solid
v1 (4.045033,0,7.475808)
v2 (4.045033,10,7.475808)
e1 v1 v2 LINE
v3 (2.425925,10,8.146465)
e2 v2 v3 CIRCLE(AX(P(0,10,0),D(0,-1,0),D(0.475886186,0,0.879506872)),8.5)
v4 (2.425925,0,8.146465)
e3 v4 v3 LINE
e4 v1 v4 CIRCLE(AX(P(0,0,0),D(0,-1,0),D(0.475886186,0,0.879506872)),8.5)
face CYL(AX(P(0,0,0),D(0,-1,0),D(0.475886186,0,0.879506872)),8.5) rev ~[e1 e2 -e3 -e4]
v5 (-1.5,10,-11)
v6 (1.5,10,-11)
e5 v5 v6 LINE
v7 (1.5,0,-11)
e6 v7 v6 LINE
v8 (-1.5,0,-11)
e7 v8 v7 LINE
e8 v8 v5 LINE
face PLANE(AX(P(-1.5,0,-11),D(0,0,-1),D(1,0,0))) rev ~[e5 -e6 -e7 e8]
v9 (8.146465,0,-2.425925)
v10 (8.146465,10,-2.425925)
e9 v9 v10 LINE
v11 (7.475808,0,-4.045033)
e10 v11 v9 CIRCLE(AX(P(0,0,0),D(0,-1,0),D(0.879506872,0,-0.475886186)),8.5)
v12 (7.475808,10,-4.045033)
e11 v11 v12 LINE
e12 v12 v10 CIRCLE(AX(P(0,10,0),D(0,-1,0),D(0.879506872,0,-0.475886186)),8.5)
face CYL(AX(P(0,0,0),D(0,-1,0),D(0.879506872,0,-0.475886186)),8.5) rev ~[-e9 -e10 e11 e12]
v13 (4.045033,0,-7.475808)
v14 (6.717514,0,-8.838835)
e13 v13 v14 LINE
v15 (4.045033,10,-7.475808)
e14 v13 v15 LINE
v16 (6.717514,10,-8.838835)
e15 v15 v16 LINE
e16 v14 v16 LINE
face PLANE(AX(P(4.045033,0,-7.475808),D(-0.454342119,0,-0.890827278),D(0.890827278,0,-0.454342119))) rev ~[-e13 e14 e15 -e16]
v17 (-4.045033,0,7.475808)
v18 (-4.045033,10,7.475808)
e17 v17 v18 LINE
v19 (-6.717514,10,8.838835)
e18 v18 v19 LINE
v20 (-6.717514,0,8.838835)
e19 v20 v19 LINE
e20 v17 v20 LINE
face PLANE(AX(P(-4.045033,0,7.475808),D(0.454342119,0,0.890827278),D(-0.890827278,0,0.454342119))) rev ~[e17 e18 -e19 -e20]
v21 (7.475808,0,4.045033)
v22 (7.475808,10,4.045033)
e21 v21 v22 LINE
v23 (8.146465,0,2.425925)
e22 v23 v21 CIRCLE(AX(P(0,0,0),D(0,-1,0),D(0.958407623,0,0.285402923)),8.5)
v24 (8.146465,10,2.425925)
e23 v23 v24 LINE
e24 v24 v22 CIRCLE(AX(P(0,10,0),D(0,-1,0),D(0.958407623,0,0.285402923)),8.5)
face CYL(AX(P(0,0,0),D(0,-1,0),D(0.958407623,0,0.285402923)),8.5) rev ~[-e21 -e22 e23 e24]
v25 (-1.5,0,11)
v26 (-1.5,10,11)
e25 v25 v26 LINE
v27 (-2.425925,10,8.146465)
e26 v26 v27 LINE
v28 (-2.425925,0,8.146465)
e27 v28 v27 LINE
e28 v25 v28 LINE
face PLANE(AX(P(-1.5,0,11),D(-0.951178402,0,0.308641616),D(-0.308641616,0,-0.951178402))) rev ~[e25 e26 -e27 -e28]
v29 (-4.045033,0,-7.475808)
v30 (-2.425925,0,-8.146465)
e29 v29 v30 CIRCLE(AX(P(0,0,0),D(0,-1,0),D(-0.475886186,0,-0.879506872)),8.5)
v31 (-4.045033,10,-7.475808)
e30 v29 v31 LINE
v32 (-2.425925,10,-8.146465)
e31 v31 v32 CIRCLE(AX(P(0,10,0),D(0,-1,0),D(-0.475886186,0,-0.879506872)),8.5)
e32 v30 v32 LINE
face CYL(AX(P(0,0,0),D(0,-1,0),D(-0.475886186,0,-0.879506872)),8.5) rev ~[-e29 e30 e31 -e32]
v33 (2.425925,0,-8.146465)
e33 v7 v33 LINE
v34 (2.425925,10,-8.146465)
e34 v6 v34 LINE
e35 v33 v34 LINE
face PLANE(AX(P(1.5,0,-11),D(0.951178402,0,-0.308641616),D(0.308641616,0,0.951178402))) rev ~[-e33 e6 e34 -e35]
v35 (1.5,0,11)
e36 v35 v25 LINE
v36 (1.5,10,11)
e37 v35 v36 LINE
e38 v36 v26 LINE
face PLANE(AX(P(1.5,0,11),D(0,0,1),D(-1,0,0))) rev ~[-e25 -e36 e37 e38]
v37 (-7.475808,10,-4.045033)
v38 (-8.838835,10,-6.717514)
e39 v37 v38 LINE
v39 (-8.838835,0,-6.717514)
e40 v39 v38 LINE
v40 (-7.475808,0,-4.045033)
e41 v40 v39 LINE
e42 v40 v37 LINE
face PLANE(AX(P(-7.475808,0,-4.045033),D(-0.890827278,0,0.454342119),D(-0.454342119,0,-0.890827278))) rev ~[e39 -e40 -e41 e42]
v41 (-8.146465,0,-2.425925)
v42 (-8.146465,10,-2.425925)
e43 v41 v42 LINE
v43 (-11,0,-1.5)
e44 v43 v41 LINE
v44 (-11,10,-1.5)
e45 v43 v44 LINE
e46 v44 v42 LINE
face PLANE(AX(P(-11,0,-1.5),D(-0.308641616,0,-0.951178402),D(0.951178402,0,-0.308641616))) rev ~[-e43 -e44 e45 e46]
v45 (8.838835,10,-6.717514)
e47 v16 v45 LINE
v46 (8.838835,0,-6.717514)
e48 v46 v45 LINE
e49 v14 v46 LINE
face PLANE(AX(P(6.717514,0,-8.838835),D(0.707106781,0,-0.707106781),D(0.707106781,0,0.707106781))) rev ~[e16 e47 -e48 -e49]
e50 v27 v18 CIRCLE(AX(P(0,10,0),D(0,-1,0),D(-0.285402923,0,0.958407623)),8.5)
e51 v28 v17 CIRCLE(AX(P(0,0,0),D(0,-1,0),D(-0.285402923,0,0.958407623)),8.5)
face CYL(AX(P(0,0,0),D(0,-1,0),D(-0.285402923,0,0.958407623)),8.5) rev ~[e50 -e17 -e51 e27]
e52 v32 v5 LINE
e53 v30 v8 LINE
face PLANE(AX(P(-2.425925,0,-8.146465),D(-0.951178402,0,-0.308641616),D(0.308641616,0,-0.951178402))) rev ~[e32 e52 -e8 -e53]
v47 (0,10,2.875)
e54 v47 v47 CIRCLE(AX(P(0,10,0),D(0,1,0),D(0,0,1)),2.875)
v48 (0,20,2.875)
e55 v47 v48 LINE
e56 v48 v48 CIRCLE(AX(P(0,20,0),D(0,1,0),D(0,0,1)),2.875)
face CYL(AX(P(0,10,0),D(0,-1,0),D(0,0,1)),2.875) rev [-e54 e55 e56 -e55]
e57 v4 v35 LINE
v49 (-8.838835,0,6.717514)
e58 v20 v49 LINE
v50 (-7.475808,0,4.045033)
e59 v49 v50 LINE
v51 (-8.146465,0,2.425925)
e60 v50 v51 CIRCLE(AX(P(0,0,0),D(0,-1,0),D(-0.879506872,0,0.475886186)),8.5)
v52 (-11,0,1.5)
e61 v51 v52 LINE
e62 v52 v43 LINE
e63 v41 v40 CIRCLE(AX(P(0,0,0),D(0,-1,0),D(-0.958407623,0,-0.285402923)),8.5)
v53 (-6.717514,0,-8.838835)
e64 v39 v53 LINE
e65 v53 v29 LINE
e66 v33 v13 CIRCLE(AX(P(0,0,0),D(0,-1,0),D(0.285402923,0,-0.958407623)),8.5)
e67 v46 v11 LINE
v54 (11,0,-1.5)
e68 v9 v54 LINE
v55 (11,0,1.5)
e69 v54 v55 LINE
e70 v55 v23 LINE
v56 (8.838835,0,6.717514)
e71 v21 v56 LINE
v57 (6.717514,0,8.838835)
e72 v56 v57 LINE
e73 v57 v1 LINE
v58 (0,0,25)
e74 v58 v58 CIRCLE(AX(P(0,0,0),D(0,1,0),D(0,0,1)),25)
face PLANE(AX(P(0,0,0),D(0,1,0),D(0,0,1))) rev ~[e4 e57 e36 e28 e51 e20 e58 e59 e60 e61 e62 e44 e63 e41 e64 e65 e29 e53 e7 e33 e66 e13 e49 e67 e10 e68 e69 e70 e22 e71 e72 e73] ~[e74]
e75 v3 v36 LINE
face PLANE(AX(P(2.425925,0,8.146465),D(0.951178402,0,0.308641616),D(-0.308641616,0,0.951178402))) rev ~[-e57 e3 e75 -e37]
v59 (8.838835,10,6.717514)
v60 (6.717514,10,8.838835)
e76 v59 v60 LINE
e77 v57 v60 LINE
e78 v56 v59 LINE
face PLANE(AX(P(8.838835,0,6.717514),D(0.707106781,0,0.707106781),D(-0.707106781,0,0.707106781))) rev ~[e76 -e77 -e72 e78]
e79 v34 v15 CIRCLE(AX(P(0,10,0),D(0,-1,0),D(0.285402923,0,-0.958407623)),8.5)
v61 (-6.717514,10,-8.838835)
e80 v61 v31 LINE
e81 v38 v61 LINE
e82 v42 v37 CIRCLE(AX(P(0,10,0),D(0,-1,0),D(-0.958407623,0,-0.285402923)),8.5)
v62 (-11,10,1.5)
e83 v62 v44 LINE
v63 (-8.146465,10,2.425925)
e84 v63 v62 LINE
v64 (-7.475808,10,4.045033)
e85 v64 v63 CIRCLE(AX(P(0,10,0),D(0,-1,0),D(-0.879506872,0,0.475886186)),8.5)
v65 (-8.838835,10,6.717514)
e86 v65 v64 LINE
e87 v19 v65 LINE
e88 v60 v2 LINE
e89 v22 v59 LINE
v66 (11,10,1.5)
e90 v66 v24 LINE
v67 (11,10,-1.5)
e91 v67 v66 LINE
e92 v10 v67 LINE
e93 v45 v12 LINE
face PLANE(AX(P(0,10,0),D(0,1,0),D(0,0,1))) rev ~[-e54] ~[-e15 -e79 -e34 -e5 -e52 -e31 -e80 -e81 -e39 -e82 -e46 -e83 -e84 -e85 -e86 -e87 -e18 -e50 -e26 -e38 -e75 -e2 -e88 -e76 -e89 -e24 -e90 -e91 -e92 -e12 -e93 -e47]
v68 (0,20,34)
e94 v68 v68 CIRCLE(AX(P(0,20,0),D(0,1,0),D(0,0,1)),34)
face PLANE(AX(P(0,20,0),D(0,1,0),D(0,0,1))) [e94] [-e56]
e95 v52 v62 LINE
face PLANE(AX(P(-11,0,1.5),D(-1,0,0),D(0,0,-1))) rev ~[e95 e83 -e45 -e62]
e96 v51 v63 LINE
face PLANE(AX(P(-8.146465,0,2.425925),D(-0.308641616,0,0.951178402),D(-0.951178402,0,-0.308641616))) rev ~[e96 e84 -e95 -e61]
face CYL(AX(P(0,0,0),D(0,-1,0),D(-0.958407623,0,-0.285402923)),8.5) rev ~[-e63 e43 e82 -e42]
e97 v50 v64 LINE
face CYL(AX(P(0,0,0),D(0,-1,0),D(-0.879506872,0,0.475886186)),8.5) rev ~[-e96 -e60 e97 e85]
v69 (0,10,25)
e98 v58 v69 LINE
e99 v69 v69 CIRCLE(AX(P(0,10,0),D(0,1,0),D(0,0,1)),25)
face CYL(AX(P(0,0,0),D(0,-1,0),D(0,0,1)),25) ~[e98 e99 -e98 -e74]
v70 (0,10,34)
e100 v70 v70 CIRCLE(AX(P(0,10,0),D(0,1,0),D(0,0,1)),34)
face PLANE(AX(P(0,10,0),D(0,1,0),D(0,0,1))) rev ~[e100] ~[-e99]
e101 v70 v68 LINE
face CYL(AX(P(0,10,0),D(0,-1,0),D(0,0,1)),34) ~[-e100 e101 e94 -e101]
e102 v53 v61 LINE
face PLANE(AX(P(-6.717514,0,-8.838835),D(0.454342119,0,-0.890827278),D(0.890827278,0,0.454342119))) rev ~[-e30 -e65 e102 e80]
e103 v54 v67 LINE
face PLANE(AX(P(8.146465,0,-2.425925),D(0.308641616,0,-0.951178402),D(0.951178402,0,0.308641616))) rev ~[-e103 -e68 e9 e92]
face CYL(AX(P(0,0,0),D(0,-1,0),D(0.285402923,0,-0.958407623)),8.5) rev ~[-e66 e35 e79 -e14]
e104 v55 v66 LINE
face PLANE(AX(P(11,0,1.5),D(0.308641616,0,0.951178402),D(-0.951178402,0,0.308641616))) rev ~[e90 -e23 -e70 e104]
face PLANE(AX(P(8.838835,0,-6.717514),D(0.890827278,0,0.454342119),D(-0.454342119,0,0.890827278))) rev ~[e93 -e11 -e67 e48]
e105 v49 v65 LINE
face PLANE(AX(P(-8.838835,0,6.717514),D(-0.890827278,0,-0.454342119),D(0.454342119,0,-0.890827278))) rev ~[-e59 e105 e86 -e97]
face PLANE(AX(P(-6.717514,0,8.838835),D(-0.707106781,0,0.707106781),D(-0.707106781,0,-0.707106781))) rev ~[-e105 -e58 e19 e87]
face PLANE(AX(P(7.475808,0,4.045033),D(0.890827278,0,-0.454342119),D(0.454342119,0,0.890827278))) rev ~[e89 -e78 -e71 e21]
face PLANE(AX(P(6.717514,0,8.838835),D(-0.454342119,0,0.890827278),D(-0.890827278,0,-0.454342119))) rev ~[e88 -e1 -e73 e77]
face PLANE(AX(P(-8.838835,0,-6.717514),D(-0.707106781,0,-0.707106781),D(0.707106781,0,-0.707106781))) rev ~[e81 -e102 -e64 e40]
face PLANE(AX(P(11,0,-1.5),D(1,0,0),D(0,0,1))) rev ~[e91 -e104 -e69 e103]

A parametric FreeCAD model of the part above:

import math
import FreeCAD as App
import Part
import Sketcher

V = App.Vector
Q = App.Units.Quantity

doc = App.newDocument("Part")
body = doc.addObject("PartDesign::Body", "Body")

sketch1 = body.newObject("Sketcher::SketchObject", "Sketch")
sketch1.AttachmentSupport = (doc.getObject("XZ_Plane"), [""])
sketch1.MapMode = "FlatFace"
sketch1.addGeometry([
    Part.Circle(V(0, 0, 0), V(0, 0, 1), 25),
    Part.LineSegment(V(-2.4, -8.1, 0), V(-1.5, -11, 0)),
    Part.LineSegment(V(-1.5, -11, 0), V(1.5, -11, 0)),
    Part.LineSegment(V(1.5, -11, 0), V(2.4, -8.1, 0)),
    Part.ArcOfCircle(Part.Circle(V(0, 0, 0), V(0, 0, 1), 8.5), math.radians(-73.42), math.radians(-61.58)),
    Part.LineSegment(V(4, -7.5, 0), V(6.7, -8.8, 0)),
    Part.LineSegment(V(6.7, -8.8, 0), V(8.8, -6.7, 0)),
    Part.LineSegment(V(8.8, -6.7, 0), V(7.5, -4, 0)),
    Part.ArcOfCircle(Part.Circle(V(0, 0, 0), V(0, 0, 1), 8.5), math.radians(-28.42), math.radians(-16.58)),
    Part.LineSegment(V(8.1, -2.4, 0), V(11, -1.5, 0)),
    Part.LineSegment(V(11, -1.5, 0), V(11, 1.5, 0)),
    Part.LineSegment(V(11, 1.5, 0), V(8.1, 2.4, 0)),
    Part.ArcOfCircle(Part.Circle(V(0, 0, 0), V(0, 0, 1), 8.5), math.radians(16.58), math.radians(28.42)),
    Part.LineSegment(V(7.5, 4, 0), V(8.8, 6.7, 0)),
    Part.LineSegment(V(8.8, 6.7, 0), V(6.7, 8.8, 0)),
    Part.LineSegment(V(6.7, 8.8, 0), V(4, 7.5, 0)),
    Part.ArcOfCircle(Part.Circle(V(0, 0, 0), V(0, 0, 1), 8.5), math.radians(61.58), math.radians(73.42)),
    Part.LineSegment(V(2.4, 8.1, 0), V(1.5, 11, 0)),
    Part.LineSegment(V(1.5, 11, 0), V(-1.5, 11, 0)),
    Part.LineSegment(V(-1.5, 11, 0), V(-2.4, 8.1, 0)),
    Part.ArcOfCircle(Part.Circle(V(0, 0, 0), V(0, 0, 1), 8.5), math.radians(106.58), math.radians(118.42)),
    Part.LineSegment(V(-4, 7.5, 0), V(-6.7, 8.8, 0)),
    Part.LineSegment(V(-6.7, 8.8, 0), V(-8.8, 6.7, 0)),
    Part.LineSegment(V(-8.8, 6.7, 0), V(-7.5, 4, 0)),
    Part.ArcOfCircle(Part.Circle(V(0, 0, 0), V(0, 0, 1), 8.5), math.radians(151.58), math.radians(163.42)),
    Part.LineSegment(V(-8.1, 2.4, 0), V(-11, 1.5, 0)),
    Part.LineSegment(V(-11, 1.5, 0), V(-11, -1.5, 0)),
    Part.LineSegment(V(-11, -1.5, 0), V(-8.1, -2.4, 0)),
    Part.ArcOfCircle(Part.Circle(V(0, 0, 0), V(0, 0, 1), 8.5), math.radians(-163.42), math.radians(-151.58)),
    Part.LineSegment(V(-7.5, -4, 0), V(-8.8, -6.7, 0)),
    Part.LineSegment(V(-8.8, -6.7, 0), V(-6.7, -8.8, 0)),
    Part.LineSegment(V(-6.7, -8.8, 0), V(-4, -7.5, 0)),
    Part.ArcOfCircle(Part.Circle(V(0, 0, 0), V(0, 0, 1), 8.5), math.radians(-118.42), math.radians(-106.58)),
], False)
sketch1.addConstraint([
    Sketcher.Constraint("Coincident", 1, 2, 2, 1),
    Sketcher.Constraint("Coincident", 2, 2, 3, 1),
    Sketcher.Constraint("Coincident", 3, 2, 4, 1),
    Sketcher.Constraint("Coincident", 4, 2, 5, 1),
    Sketcher.Constraint("Coincident", 5, 2, 6, 1),
    Sketcher.Constraint("Coincident", 6, 2, 7, 1),
    Sketcher.Constraint("Coincident", 7, 2, 8, 1),
    Sketcher.Constraint("Coincident", 8, 2, 9, 1),
    Sketcher.Constraint("Coincident", 9, 2, 10, 1),
    Sketcher.Constraint("Coincident", 10, 2, 11, 1),
    Sketcher.Constraint("Coincident", 11, 2, 12, 1),
    Sketcher.Constraint("Coincident", 12, 2, 13, 1),
    Sketcher.Constraint("Coincident", 13, 2, 14, 1),
    Sketcher.Constraint("Coincident", 14, 2, 15, 1),
    Sketcher.Constraint("Coincident", 15, 2, 16, 1),
    Sketcher.Constraint("Coincident", 16, 2, 17, 1),
    Sketcher.Constraint("Coincident", 17, 2, 18, 1),
    Sketcher.Constraint("Coincident", 18, 2, 19, 1),
    Sketcher.Constraint("Coincident", 19, 2, 20, 1),
    Sketcher.Constraint("Coincident", 20, 2, 21, 1),
    Sketcher.Constraint("Coincident", 21, 2, 22, 1),
    Sketcher.Constraint("Coincident", 22, 2, 23, 1),
    Sketcher.Constraint("Coincident", 23, 2, 24, 1),
    Sketcher.Constraint("Coincident", 24, 2, 25, 1),
    Sketcher.Constraint("Coincident", 25, 2, 26, 1),
    Sketcher.Constraint("Coincident", 26, 2, 27, 1),
    Sketcher.Constraint("Coincident", 27, 2, 28, 1),
    Sketcher.Constraint("Coincident", 28, 2, 29, 1),
    Sketcher.Constraint("Coincident", 29, 2, 30, 1),
    Sketcher.Constraint("Coincident", 30, 2, 31, 1),
    Sketcher.Constraint("Coincident", 31, 2, 32, 1),
    Sketcher.Constraint("Coincident", 32, 2, 1, 1),
    Sketcher.Constraint("Horizontal", 2),
    Sketcher.Constraint("Vertical", 10),
    Sketcher.Constraint("Horizontal", 18),
    Sketcher.Constraint("Vertical", 26),
    Sketcher.Constraint("Coincident", 0, 3, -1, 1),
    Sketcher.Constraint("Coincident", 4, 3, -1, 1),
    Sketcher.Constraint("Coincident", 8, 3, -1, 1),
    Sketcher.Constraint("Coincident", 12, 3, -1, 1),
    Sketcher.Constraint("Coincident", 16, 3, -1, 1),
    Sketcher.Constraint("Coincident", 20, 3, -1, 1),
    Sketcher.Constraint("Coincident", 24, 3, -1, 1),
    Sketcher.Constraint("Coincident", 28, 3, -1, 1),
    Sketcher.Constraint("Coincident", 32, 3, -1, 1),
    Sketcher.Constraint("Equal", 4, 8),
    Sketcher.Constraint("Equal", 8, 12),
    Sketcher.Constraint("Equal", 12, 16),
    Sketcher.Constraint("Equal", 16, 20),
    Sketcher.Constraint("Equal", 20, 24),
    Sketcher.Constraint("Equal", 24, 28),
    Sketcher.Constraint("Equal", 28, 32),
    Sketcher.Constraint("Symmetric", 1, 2, 17, 2, -1, 1),
    Sketcher.Constraint("Symmetric", 5, 2, 21, 2, -1, 1),
    Sketcher.Constraint("Symmetric", 6, 2, 22, 2, -1, 1),
    Sketcher.Constraint("Symmetric", 9, 2, 25, 2, -1, 1),
    Sketcher.Constraint("Symmetric", 13, 2, 29, 2, -1, 1),
    Sketcher.Constraint("Symmetric", 14, 2, 30, 2, -1, 1),
    Sketcher.Constraint("Symmetric", 14, 2, 21, 2, -2),
    Sketcher.Constraint("Symmetric", 13, 2, 22, 2, -2),
    Sketcher.Constraint("Perpendicular", 1, 9),
    Sketcher.Constraint("Perpendicular", 3, 11),
    Sketcher.Constraint("Perpendicular", 5, 13),
    Sketcher.Constraint("Perpendicular", 6, 14),
    Sketcher.Constraint("Perpendicular", 7, 15),
    Sketcher.Constraint("Perpendicular", 9, 17),
    Sketcher.Constraint("Perpendicular", 11, 19),
    Sketcher.Constraint("Perpendicular", 13, 21),
    Sketcher.Constraint("Perpendicular", 15, 23),
    Sketcher.Constraint("Perpendicular", 17, 25),
    Sketcher.Constraint("Perpendicular", 19, 27),
    Sketcher.Constraint("Perpendicular", 21, 29),
    Sketcher.Constraint("Perpendicular", 23, 31),
    Sketcher.Constraint("Horizontal", 16, 2, 19, 2),
    Sketcher.Constraint("Horizontal", 15, 2, 20, 2),
    Sketcher.Constraint("Horizontal", 11, 2, 24, 2),
    Sketcher.Constraint("Horizontal", 10, 2, 25, 2),
    Sketcher.Constraint("Horizontal", 9, 2, 26, 2),
    Sketcher.Constraint("Horizontal", 3, 2, 32, 2),
    Sketcher.Constraint("Equal", 18, 10),
    Sketcher.Constraint("Equal", 3, 5),
    Sketcher.Constraint("Equal", 5, 6),
    Sketcher.Constraint("Equal", 6, 7),
    Sketcher.Constraint("Equal", 7, 9),
    Sketcher.Constraint("Diameter", 0, Q("50 mm")),
    Sketcher.Constraint("Radius", 4, Q("8.5 mm")),
    Sketcher.Constraint("DistanceX", 2, 1, 2, 2, Q("3 mm")),
    Sketcher.Constraint("Distance", 1, Q("3 mm")),
    Sketcher.Constraint("DistanceY", 1, 2, -1, 1, Q("11 mm")),
    Sketcher.Constraint("DistanceY", 4, 2, -1, 1, Q("7.475808 mm")),
])
pad1 = body.newObject("PartDesign::Pad", "Pad")
pad1.Profile = sketch1
pad1.Length = 10
pad1.Reversed = True

sketch2 = body.newObject("Sketcher::SketchObject", "Sketch001")
sketch2.AttachmentSupport = (doc.getObject("XZ_Plane"), [""])
sketch2.MapMode = "FlatFace"
sketch2.AttachmentOffset = App.Placement(V(0, 0, -10), App.Rotation())
sketch2.addGeometry([
    Part.Circle(V(0, 0, 0), V(0, 0, 1), 34),
    Part.Circle(V(0, 0, 0), V(0, 0, 1), 2.9),
], False)
sketch2.addConstraint([
    Sketcher.Constraint("Coincident", 0, 3, -1, 1),
    Sketcher.Constraint("Coincident", 1, 3, -1, 1),
    Sketcher.Constraint("Diameter", 0, Q("68 mm")),
    Sketcher.Constraint("Diameter", 1, Q("5.75 mm")),
])
pad2 = body.newObject("PartDesign::Pad", "Pad001")
pad2.Profile = sketch2
pad2.Length = 10
pad2.Reversed = True

doc.recompute()
